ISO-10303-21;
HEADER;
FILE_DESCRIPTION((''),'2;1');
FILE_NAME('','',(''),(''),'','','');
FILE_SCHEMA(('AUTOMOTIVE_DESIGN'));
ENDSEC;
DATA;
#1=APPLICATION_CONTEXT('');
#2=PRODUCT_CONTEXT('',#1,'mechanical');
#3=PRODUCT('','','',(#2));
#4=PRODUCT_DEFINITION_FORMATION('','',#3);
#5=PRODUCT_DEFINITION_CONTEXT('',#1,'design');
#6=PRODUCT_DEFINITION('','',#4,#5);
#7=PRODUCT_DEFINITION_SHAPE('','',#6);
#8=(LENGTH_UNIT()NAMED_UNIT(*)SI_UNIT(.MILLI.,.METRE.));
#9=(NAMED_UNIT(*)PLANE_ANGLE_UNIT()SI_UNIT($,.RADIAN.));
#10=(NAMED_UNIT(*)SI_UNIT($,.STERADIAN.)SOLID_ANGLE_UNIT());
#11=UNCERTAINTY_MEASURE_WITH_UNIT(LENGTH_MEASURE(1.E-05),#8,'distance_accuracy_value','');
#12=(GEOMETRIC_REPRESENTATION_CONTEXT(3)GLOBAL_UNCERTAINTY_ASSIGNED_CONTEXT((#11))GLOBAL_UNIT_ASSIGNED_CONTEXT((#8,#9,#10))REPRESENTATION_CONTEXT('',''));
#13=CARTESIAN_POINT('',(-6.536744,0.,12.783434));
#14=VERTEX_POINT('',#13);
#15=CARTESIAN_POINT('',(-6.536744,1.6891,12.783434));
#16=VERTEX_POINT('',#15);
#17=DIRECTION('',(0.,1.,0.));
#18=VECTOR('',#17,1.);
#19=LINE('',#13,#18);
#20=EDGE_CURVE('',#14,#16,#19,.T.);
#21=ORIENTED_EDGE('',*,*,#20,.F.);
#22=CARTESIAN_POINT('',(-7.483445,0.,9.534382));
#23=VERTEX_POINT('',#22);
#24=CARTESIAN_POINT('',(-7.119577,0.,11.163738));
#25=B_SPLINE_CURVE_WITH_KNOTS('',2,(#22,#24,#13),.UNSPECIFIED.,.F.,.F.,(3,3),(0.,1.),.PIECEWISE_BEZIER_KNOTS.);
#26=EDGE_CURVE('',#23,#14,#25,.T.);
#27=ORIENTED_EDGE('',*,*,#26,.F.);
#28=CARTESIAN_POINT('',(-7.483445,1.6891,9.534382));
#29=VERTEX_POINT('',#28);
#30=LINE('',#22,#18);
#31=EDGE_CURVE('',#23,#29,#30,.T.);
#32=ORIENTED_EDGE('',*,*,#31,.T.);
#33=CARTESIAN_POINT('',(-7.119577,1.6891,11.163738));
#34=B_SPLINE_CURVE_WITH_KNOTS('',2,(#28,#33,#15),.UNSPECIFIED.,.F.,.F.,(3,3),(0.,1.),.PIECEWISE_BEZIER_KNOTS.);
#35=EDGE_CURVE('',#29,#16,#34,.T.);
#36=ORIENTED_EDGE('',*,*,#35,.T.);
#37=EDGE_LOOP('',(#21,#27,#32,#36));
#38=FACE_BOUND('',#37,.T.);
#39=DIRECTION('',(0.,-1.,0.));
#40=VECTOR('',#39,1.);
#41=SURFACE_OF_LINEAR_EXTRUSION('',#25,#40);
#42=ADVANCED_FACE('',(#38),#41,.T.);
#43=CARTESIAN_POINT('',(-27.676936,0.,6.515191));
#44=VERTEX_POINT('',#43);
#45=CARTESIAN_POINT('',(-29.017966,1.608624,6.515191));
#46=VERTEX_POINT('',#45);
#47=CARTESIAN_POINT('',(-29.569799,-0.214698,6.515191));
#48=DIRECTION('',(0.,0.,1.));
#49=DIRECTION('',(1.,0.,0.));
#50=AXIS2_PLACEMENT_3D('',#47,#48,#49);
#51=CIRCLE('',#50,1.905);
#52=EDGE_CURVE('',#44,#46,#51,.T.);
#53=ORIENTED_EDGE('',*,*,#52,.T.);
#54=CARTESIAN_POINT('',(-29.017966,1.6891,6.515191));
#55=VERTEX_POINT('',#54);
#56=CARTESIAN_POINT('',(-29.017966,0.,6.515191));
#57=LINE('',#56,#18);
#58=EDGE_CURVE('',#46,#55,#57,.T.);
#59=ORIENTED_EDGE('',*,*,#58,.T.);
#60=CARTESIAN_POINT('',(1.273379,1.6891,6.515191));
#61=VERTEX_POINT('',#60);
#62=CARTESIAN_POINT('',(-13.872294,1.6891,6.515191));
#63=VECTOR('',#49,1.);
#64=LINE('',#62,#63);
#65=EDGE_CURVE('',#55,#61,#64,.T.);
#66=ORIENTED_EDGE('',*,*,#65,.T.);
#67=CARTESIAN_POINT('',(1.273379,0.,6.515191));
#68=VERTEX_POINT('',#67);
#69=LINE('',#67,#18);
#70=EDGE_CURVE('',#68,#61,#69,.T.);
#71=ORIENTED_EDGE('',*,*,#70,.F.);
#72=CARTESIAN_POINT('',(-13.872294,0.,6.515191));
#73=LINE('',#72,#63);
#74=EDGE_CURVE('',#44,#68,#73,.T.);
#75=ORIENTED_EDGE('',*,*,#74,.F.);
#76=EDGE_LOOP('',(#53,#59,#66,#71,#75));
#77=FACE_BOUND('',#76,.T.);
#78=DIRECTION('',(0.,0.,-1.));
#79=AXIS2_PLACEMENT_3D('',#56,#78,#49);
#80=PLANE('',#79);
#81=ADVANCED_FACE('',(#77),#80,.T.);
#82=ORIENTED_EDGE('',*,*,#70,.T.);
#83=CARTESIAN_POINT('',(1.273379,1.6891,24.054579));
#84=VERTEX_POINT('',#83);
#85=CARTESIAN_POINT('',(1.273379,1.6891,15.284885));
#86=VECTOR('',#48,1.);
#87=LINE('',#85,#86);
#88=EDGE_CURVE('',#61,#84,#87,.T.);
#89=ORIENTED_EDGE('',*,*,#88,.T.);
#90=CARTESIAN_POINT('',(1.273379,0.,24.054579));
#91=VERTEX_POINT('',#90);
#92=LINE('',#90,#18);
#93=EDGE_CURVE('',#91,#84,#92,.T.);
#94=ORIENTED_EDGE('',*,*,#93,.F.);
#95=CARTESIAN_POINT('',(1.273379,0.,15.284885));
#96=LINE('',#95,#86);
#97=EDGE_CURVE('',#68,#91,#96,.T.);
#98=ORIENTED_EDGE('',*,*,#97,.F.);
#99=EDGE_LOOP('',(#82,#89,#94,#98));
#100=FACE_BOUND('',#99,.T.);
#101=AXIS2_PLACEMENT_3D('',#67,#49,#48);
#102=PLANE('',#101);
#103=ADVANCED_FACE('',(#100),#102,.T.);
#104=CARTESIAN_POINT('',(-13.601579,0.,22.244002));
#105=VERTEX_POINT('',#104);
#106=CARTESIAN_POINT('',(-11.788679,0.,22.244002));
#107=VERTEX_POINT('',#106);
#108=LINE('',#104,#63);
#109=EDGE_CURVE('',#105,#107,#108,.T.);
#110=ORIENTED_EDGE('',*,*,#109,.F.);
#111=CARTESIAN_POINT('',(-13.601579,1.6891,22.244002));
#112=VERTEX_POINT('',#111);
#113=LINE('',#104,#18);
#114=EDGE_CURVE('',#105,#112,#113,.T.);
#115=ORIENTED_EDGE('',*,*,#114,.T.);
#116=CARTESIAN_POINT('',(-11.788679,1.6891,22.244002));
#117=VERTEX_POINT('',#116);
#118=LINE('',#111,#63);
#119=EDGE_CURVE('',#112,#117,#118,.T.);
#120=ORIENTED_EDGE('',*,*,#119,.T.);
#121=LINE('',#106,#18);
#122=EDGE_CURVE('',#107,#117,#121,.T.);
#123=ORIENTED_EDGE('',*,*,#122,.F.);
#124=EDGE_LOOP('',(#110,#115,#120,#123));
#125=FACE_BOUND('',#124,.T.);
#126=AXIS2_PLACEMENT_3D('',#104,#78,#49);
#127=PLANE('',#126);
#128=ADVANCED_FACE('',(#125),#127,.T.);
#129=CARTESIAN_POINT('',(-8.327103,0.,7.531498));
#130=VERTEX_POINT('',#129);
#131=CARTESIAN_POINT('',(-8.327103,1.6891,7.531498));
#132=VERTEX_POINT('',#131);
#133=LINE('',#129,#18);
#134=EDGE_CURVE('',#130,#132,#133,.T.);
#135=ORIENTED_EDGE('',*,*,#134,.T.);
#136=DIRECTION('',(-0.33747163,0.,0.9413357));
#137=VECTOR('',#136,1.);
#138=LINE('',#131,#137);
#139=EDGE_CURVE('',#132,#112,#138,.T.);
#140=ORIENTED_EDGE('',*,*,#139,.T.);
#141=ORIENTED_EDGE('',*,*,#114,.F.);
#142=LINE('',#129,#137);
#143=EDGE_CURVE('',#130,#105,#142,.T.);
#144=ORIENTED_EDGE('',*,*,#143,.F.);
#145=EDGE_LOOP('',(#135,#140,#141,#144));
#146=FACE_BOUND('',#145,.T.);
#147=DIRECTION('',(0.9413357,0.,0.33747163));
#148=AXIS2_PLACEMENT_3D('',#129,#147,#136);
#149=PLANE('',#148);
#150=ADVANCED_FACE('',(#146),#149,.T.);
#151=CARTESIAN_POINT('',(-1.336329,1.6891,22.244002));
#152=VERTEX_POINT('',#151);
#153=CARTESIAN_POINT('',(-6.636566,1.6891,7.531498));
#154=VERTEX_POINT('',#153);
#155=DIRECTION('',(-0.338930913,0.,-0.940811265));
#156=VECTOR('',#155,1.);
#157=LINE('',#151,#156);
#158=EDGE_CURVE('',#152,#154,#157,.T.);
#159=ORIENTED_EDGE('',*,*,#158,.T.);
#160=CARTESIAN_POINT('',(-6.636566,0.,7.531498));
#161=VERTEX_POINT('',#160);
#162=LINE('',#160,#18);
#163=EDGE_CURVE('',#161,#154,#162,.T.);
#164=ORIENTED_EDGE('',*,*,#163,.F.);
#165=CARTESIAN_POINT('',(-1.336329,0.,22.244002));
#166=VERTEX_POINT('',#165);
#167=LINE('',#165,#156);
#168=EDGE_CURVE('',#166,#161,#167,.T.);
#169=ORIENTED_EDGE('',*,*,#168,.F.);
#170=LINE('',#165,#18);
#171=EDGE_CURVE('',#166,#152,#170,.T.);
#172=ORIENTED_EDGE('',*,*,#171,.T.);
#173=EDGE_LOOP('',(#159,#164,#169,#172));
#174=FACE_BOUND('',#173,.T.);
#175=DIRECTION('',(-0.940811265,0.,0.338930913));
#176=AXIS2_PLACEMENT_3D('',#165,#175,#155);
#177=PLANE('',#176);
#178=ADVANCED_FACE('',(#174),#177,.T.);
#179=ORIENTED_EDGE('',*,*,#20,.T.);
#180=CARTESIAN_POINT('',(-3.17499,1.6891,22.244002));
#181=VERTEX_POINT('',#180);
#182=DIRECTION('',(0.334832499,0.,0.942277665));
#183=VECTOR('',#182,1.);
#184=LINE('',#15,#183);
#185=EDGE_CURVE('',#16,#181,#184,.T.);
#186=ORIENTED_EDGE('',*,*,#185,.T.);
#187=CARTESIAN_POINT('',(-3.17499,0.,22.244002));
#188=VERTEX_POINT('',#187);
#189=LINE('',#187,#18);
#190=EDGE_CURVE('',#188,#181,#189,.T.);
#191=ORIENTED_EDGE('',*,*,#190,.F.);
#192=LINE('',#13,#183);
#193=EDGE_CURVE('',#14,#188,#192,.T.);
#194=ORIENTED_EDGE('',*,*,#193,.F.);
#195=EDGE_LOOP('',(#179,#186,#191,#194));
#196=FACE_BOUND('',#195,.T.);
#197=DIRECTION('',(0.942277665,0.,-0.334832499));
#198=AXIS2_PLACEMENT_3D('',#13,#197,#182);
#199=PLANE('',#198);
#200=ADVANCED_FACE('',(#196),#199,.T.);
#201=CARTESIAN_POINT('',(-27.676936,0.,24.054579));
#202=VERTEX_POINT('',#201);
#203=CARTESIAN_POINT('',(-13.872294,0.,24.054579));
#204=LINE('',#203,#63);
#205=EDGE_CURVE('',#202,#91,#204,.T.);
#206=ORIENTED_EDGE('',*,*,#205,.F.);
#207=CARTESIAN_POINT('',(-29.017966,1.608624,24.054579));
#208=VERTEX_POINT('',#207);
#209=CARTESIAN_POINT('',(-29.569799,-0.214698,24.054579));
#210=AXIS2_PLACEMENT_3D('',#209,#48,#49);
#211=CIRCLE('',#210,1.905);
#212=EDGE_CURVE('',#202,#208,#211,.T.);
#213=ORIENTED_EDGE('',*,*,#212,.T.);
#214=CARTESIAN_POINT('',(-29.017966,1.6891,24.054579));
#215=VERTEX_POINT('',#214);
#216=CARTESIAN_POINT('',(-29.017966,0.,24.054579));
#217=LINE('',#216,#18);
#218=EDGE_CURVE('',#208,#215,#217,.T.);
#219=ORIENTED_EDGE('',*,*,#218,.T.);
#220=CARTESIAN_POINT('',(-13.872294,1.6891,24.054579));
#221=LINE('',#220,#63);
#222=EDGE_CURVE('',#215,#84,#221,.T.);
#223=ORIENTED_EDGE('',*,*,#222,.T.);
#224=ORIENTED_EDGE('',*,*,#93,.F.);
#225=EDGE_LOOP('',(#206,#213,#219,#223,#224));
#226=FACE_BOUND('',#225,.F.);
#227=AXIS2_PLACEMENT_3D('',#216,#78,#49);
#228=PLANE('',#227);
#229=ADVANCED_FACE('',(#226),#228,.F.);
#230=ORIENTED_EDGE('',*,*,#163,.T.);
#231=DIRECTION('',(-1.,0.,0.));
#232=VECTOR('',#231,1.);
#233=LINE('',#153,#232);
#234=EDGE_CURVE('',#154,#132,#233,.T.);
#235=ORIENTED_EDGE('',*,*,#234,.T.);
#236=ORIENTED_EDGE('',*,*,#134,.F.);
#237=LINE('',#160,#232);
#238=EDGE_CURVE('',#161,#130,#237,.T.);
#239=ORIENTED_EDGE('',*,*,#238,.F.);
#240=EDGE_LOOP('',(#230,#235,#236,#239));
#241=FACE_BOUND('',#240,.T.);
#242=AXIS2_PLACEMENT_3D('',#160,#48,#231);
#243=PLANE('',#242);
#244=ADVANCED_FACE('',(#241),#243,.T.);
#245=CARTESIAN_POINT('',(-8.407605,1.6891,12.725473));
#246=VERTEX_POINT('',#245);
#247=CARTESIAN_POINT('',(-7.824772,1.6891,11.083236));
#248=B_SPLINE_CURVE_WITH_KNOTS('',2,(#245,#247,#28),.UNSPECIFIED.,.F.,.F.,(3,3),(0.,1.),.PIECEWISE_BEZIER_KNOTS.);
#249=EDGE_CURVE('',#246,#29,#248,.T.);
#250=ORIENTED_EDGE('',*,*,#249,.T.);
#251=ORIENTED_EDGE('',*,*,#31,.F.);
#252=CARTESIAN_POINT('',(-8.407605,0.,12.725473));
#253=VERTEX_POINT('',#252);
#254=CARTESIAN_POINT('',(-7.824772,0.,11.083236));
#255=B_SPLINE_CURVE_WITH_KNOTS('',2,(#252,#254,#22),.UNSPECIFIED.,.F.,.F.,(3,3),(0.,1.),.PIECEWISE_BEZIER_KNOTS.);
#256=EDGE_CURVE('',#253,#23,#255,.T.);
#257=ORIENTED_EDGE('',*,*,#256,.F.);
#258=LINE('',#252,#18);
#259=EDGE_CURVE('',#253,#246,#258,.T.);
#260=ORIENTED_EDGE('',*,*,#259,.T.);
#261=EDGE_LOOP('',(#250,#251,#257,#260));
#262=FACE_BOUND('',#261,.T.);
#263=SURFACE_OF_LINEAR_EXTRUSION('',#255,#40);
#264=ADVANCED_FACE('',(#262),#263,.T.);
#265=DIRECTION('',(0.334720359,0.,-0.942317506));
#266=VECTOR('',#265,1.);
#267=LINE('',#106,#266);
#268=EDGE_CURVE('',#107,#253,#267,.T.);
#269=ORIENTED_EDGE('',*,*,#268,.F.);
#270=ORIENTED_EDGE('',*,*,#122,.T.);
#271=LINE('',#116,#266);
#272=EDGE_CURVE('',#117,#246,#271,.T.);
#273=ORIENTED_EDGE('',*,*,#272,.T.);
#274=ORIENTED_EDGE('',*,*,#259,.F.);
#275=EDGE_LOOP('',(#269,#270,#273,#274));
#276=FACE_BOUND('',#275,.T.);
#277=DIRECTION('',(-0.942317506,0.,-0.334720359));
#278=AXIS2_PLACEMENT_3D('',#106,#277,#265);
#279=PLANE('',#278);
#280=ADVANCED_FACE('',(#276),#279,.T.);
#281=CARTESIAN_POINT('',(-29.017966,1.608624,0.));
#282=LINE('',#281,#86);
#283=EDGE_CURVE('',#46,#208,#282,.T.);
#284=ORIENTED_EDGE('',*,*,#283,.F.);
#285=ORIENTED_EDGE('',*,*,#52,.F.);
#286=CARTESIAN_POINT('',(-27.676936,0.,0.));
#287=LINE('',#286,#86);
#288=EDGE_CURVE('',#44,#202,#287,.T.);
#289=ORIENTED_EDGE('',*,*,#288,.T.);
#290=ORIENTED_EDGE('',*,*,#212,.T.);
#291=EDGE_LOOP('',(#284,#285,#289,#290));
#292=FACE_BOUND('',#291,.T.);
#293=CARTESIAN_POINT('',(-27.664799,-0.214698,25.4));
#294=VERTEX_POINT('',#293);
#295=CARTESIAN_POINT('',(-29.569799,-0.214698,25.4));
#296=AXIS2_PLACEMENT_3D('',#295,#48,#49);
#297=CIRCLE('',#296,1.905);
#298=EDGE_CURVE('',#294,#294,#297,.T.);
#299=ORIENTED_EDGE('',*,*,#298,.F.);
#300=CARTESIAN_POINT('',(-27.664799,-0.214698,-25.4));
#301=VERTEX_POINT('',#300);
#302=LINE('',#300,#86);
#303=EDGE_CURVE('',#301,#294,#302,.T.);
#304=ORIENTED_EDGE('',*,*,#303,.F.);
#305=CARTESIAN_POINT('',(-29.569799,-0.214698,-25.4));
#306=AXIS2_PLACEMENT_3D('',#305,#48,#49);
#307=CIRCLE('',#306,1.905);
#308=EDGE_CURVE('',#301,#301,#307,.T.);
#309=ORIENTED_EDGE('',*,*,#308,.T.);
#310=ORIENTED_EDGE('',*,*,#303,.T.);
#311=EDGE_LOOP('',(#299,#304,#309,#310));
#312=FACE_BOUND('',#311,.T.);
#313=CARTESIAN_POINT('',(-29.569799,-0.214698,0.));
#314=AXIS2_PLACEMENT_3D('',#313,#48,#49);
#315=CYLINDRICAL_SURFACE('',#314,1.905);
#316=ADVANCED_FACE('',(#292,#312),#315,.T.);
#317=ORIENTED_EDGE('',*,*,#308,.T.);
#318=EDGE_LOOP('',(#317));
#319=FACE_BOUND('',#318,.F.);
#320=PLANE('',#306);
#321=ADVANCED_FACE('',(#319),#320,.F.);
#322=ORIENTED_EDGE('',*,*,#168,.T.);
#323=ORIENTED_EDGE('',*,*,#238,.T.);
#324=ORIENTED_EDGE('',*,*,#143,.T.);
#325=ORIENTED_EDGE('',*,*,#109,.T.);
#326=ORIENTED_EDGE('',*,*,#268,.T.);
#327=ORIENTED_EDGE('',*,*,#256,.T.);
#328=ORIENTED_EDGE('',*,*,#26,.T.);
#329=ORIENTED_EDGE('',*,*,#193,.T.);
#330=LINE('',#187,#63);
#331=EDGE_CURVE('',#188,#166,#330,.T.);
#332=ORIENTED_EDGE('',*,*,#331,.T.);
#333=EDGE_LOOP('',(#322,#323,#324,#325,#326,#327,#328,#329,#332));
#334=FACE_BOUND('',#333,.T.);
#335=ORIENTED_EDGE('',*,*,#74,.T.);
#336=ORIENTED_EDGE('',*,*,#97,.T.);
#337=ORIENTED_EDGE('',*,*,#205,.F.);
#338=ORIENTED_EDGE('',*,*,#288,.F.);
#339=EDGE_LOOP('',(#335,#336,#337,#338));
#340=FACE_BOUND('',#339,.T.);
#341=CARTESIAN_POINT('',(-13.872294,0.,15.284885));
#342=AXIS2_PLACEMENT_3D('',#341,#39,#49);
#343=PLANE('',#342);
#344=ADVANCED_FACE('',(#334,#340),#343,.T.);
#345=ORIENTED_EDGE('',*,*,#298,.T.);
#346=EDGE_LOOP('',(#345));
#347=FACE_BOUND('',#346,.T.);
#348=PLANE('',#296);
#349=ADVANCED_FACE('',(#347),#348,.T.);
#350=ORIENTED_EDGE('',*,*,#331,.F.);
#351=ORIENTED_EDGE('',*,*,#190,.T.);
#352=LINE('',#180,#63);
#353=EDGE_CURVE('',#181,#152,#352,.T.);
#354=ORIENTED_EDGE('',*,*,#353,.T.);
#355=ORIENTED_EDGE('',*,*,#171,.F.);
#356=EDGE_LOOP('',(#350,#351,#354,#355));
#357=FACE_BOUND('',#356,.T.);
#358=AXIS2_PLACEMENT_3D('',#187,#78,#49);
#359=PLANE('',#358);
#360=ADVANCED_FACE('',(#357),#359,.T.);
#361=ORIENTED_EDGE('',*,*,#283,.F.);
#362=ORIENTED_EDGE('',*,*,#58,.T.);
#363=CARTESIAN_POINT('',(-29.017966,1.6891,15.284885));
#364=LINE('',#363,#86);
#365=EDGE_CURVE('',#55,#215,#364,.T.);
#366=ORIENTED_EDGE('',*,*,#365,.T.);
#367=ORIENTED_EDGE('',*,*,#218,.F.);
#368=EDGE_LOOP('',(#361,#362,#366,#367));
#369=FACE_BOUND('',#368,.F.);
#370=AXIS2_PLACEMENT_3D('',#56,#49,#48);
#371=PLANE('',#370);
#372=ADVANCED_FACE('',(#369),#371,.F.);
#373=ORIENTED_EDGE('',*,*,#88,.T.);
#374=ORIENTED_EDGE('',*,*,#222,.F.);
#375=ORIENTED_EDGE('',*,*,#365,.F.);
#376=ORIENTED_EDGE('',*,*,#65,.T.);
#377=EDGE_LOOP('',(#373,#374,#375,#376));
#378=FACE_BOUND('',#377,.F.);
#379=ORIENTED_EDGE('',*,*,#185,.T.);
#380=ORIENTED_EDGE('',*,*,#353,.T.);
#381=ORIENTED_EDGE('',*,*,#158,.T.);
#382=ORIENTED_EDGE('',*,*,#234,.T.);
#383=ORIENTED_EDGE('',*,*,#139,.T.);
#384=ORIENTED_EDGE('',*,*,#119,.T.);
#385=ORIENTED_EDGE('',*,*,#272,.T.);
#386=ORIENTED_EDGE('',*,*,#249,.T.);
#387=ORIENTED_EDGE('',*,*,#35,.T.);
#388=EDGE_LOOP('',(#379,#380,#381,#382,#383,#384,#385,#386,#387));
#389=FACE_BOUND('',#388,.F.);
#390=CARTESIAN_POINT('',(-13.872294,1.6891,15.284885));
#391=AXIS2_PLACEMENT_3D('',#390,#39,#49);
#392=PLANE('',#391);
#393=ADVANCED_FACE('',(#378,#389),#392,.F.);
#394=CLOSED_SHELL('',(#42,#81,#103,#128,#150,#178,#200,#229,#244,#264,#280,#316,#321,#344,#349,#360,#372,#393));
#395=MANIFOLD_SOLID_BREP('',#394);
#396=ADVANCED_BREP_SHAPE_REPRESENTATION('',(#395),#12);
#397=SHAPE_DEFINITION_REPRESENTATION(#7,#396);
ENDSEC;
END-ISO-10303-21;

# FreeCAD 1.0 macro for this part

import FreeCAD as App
import Part
import Sketcher
from FreeCAD import Vector
Q = App.Units.Quantity


def add_polygon(sketch, points):
    """Adds a closed chain of lines whose ends are joined by coincident constraints."""
    first, n = sketch.GeometryCount, len(points)
    for a, b in zip(points, points[1:] + points[:1]):
        sketch.addGeometry(Part.LineSegment(App.Vector(*a, 0), App.Vector(*b, 0)), False)
    for i in range(n):
        sketch.addConstraint(Sketcher.Constraint("Coincident", first + i, 2, first + (i + 1) % n, 1))

doc = App.newDocument("Part")
params = doc.addObject("Spreadsheet::Sheet", "Params")
for row, (alias, value) in enumerate([
    ("sketch1_diameter", "0.15 in"),
    ("pad1_length", "2 in"),
    ("pad2_length", "0.0665 in"),
], start=1):
    params.set(f"A{row}", alias)
    params.set(f"B{row}", "=" + value)
    params.setAlias(f"B{row}", alias)

body = doc.addObject("PartDesign::Body", "Body")

sketch1 = doc.addObject("Sketcher::SketchObject", "Sketch")
body.addObject(sketch1)
sketch1.AttachmentSupport = (doc.XY_Plane, [""])
sketch1.MapMode = "FlatFace"
sketch1.addGeometry(Part.Circle(Vector(-29.6, 21.6, 0), Vector(0, 0, 1), 1.9), False)
sketch1.addConstraint([
    Sketcher.Constraint("Diameter", 0, Q("0.15 in")),
    Sketcher.Constraint("DistanceX", 0, 3, -1, 1, Q("29.569799 mm")),
    Sketcher.Constraint("DistanceY", -1, 1, 0, 3, Q("21.629302 mm")),
])
sketch1.setExpression("Constraints[0]", "Params.sketch1_diameter")
pad1 = doc.addObject("PartDesign::Pad", "Pad")
body.addObject(pad1)
pad1.Profile = sketch1
pad1.setExpression("Length", "Params.pad1_length")
pad1.Midplane = True
body2 = doc.addObject("PartDesign::Body", "Body001")
doc.recompute()

body.Placement = App.Placement(Vector(0, -21.844, 0), App.Rotation(Vector(0, 0, 1), 0))
boolean = doc.addObject("PartDesign::Boolean", "Boolean")
body2.addObject(boolean)
boolean.Type = "Fuse"
boolean.addObjects([body])

sketch2 = doc.addObject("Sketcher::SketchObject", "Sketch001")
body2.addObject(sketch2)
sketch2.AttachmentSupport = (doc.getObject("XZ_Plane001"), [""])
sketch2.MapMode = "FlatFace"
add_polygon(sketch2, [(-29.017966, 24.054579), (-29.017966, 6.515191), (1.273379, 6.515191), (1.273379, 24.054579)])
sketch2.addGeometry(Part.BSplineCurve([Vector(-7.483445, 9.534382, 0), Vector(-7.119577, 11.163738, 0), Vector(-6.536744, 12.783434, 0)], [3, 3], [0, 1], False, 2, [1, 1, 1], False), False)
sketch2.addGeometry(Part.LineSegment(Vector(-6.536744, 12.783434, 0), Vector(-3.17499, 22.244002, 0)), False)
sketch2.addGeometry(Part.LineSegment(Vector(-3.17499, 22.244002, 0), Vector(-1.336329, 22.244002, 0)), False)
sketch2.addGeometry(Part.LineSegment(Vector(-1.336329, 22.244002, 0), Vector(-6.636566, 7.531498, 0)), False)
sketch2.addGeometry(Part.LineSegment(Vector(-6.636566, 7.531498, 0), Vector(-8.327103, 7.531498, 0)), False)
sketch2.addGeometry(Part.LineSegment(Vector(-8.327103, 7.531498, 0), Vector(-13.601579, 22.244002, 0)), False)
sketch2.addGeometry(Part.LineSegment(Vector(-13.601579, 22.244002, 0), Vector(-11.788679, 22.244002, 0)), False)
sketch2.addGeometry(Part.LineSegment(Vector(-11.788679, 22.244002, 0), Vector(-8.407605, 12.725473, 0)), False)
sketch2.addGeometry(Part.BSplineCurve([Vector(-8.407605, 12.725473, 0), Vector(-7.824772, 11.083236, 0), Vector(-7.483445, 9.534382, 0)], [3, 3], [0, 1], False, 2, [1, 1, 1], False), False)
sketch2.addConstraint([
    Sketcher.Constraint("Block", 4),
    Sketcher.Constraint("Block", 12),
    Sketcher.Constraint("Coincident", 4, 2, 5, 1),
    Sketcher.Constraint("Coincident", 5, 2, 6, 1),
    Sketcher.Constraint("Coincident", 6, 2, 7, 1),
    Sketcher.Constraint("Coincident", 7, 2, 8, 1),
    Sketcher.Constraint("Coincident", 8, 2, 9, 1),
    Sketcher.Constraint("Coincident", 9, 2, 10, 1),
    Sketcher.Constraint("Coincident", 10, 2, 11, 1),
    Sketcher.Constraint("Coincident", 11, 2, 12, 1),
    Sketcher.Constraint("Vertical", 0),
    Sketcher.Constraint("Horizontal", 1),
    Sketcher.Constraint("Vertical", 2),
    Sketcher.Constraint("Horizontal", 3),
    Sketcher.Constraint("Horizontal", 6),
    Sketcher.Constraint("Horizontal", 8),
    Sketcher.Constraint("Horizontal", 10),
    Sketcher.Constraint("Horizontal", 6, 2, 9, 2),
    Sketcher.Constraint("DistanceX", 10, 1, 10, 2, Q("1.8129 mm")),
    Sketcher.Constraint("DistanceX", 6, 1, 6, 2, Q("1.83866 mm")),
    Sketcher.Constraint("DistanceY", 0, 2, 0, 1, Q("17.539389 mm")),
    Sketcher.Constraint("DistanceY", -1, 1, 5, 2, Q("22.244002 mm")),
    Sketcher.Constraint("DistanceY", -1, 1, 7, 2, Q("7.531498 mm")),
    Sketcher.Constraint("DistanceX", 0, 2, 7, 2, Q("22.3814 mm")),
    Sketcher.Constraint("DistanceX", 11, 2, 8, 2, Q("0.080502 mm")),
    Sketcher.Constraint("Distance", 9, Q("15.629391 mm")),
    Sketcher.Constraint("DistanceX", 1, 1, 1, 2, Q("30.291345 mm")),
    Sketcher.Constraint("DistanceX", 8, 2, 8, 1, Q("1.690537 mm")),
    Sketcher.Constraint("DistanceY", -1, 1, 0, 2, Q("6.515191 mm")),
    Sketcher.Constraint("DistanceX", 5, 2, -1, 1, Q("3.17499 mm")),
])
pad2 = doc.addObject("PartDesign::Pad", "Pad001")
body2.addObject(pad2)
pad2.Profile = sketch2
pad2.setExpression("Length", "Params.pad2_length")
pad2.Reversed = True

doc.recompute()
